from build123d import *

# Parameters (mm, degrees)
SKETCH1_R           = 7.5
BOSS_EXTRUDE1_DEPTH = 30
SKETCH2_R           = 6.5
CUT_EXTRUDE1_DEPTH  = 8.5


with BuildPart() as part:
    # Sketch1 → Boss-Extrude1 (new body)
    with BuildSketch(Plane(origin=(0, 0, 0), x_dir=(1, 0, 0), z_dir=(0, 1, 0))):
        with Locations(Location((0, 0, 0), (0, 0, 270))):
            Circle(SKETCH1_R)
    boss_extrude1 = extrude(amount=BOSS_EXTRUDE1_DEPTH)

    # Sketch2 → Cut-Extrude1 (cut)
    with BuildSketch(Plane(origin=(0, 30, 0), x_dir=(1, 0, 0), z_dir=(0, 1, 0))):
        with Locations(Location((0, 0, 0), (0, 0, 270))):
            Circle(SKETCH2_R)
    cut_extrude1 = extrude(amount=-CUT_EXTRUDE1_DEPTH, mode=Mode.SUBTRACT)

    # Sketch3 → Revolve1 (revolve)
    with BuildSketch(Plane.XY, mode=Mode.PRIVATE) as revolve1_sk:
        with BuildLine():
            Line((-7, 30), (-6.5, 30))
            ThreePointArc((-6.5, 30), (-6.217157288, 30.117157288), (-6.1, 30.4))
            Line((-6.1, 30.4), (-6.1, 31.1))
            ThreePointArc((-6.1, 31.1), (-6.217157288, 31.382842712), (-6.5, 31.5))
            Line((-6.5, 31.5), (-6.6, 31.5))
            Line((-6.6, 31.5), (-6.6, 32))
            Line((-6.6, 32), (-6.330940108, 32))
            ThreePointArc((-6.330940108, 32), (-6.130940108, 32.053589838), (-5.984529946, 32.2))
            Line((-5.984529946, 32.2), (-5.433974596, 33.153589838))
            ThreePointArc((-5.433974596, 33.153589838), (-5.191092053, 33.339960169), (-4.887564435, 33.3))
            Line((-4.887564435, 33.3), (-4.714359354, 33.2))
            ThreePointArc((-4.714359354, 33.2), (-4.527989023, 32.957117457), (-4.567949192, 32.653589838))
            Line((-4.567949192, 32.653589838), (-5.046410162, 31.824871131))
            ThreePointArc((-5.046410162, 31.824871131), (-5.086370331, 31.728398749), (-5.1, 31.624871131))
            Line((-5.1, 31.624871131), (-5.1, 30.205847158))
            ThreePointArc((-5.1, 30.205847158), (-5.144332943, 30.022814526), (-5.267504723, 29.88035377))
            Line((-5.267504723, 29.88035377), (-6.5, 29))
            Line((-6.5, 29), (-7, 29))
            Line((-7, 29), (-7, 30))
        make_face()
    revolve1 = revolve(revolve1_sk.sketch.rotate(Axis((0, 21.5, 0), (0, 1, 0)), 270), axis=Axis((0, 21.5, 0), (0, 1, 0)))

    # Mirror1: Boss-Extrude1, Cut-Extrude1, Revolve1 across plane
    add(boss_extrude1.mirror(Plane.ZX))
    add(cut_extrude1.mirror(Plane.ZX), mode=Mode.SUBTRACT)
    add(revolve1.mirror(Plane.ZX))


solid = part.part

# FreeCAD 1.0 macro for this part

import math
import FreeCAD as App
import Part
import Sketcher
from FreeCAD import Vector
Q = App.Units.Quantity

doc = App.newDocument("Part")
body = doc.addObject("PartDesign::Body", "Body")

sketch1 = body.newObject("Sketcher::SketchObject", "Sketch")
sketch1.AttachmentSupport = (doc.getObject("XZ_Plane"), [""])
sketch1.MapMode = "FlatFace"
sketch1.addGeometry(Part.Circle(Vector(0, 0, 0), Vector(0, 0, 1), 8), False)
sketch1.addConstraint([
    Sketcher.Constraint("Coincident", 0, 3, -1, 1),
    Sketcher.Constraint("Diameter", 0, 15.0),
])
pad1 = body.newObject("PartDesign::Pad", "Pad")
pad1.Profile = sketch1
pad1.Length = 30
pad1.Reversed = True

sketch2 = body.newObject("Sketcher::SketchObject", "Sketch001")
sketch2.AttachmentSupport = (doc.getObject("XZ_Plane"), [""])
sketch2.MapMode = "FlatFace"
sketch2.AttachmentOffset = App.Placement(Vector(0, 0, -30), App.Rotation())
sketch2.addGeometry(Part.Circle(Vector(0, 0, 0), Vector(0, 0, 1), 6), False)
sketch2.addConstraint([
    Sketcher.Constraint("Coincident", 0, 3, -1, 1),
    Sketcher.Constraint("Diameter", 0, 13.0),
])
pocket1 = body.newObject("PartDesign::Pocket", "Pocket")
pocket1.Profile = sketch2
pocket1.Length = 8.5
pocket1.Reversed = True

sketch3 = body.newObject("Sketcher::SketchObject", "Sketch002")
sketch3.AttachmentSupport = (doc.getObject("XY_Plane"), [""])
sketch3.MapMode = "FlatFace"
sketch3.addGeometry([
    Part.LineSegment(Vector(-6.5, 30, 0), Vector(-7, 30, 0)),
    Part.LineSegment(Vector(-7, 30, 0), Vector(-7, 29, 0)),
    Part.LineSegment(Vector(-7, 29, 0), Vector(-6.5, 29, 0)),
    Part.LineSegment(Vector(-6.5, 29, 0), Vector(-5.27, 29.88, 0)),
    Part.ArcOfCircle(Part.Circle(Vector(-5.5, 30.21, 0), Vector(0, 0, 1), 0.4), math.radians(-54), math.radians(0)),
    Part.LineSegment(Vector(-5.1, 30.21, 0), Vector(-5.1, 31.62, 0)),
    Part.ArcOfCircle(Part.Circle(Vector(-4.7, 31.62, 0), Vector(0, 0, 1), 0.4), math.radians(150), math.radians(180)),
    Part.LineSegment(Vector(-5.05, 31.82, 0), Vector(-4.57, 32.65, 0)),
    Part.ArcOfCircle(Part.Circle(Vector(-4.91, 32.85, 0), Vector(0, 0, 1), 0.4), math.radians(-30), math.radians(60)),
    Part.LineSegment(Vector(-4.71, 33.2, 0), Vector(-4.89, 33.3, 0)),
    Part.ArcOfCircle(Part.Circle(Vector(-5.09, 32.95, 0), Vector(0, 0, 1), 0.4), math.radians(60), math.radians(150)),
    Part.LineSegment(Vector(-5.43, 33.15, 0), Vector(-5.98, 32.2, 0)),
    Part.ArcOfCircle(Part.Circle(Vector(-6.33, 32.4, 0), Vector(0, 0, 1), 0.4), math.radians(-90), math.radians(-30)),
    Part.LineSegment(Vector(-6.33, 32, 0), Vector(-6.6, 32, 0)),
    Part.LineSegment(Vector(-6.6, 32, 0), Vector(-6.6, 31.5, 0)),
    Part.LineSegment(Vector(-6.6, 31.5, 0), Vector(-6.5, 31.5, 0)),
    Part.ArcOfCircle(Part.Circle(Vector(-6.5, 31.1, 0), Vector(0, 0, 1), 0.4), math.radians(0), math.radians(90)),
    Part.LineSegment(Vector(-6.1, 31.1, 0), Vector(-6.1, 30.4, 0)),
    Part.ArcOfCircle(Part.Circle(Vector(-6.5, 30.4, 0), Vector(0, 0, 1), 0.4), math.radians(-90), math.radians(0)),
], False)
sketch3.addConstraint([
    Sketcher.Constraint("Coincident", 0, 2, 1, 1),
    Sketcher.Constraint("Coincident", 1, 2, 2, 1),
    Sketcher.Constraint("Coincident", 2, 2, 3, 1),
    Sketcher.Constraint("Tangent", 3, 2, 4, 1),
    Sketcher.Constraint("Tangent", 4, 2, 5, 1),
    Sketcher.Constraint("Tangent", 5, 2, 6, 2),
    Sketcher.Constraint("Tangent", 6, 1, 7, 1),
    Sketcher.Constraint("Tangent", 7, 2, 8, 1),
    Sketcher.Constraint("Tangent", 8, 2, 9, 1),
    Sketcher.Constraint("Tangent", 9, 2, 10, 1),
    Sketcher.Constraint("Tangent", 10, 2, 11, 1),
    Sketcher.Constraint("Tangent", 11, 2, 12, 2),
    Sketcher.Constraint("Tangent", 12, 1, 13, 1),
    Sketcher.Constraint("Coincident", 13, 2, 14, 1),
    Sketcher.Constraint("Coincident", 14, 2, 15, 1),
    Sketcher.Constraint("Tangent", 15, 2, 16, 2),
    Sketcher.Constraint("Tangent", 16, 1, 17, 1),
    Sketcher.Constraint("Tangent", 17, 2, 18, 2),
    Sketcher.Constraint("Tangent", 18, 1, 0, 1),
    Sketcher.Constraint("Horizontal", 0),
    Sketcher.Constraint("Vertical", 1),
    Sketcher.Constraint("Horizontal", 2),
    Sketcher.Constraint("Vertical", 5),
    Sketcher.Constraint("Horizontal", 13),
    Sketcher.Constraint("Vertical", 14),
    Sketcher.Constraint("Horizontal", 15),
    Sketcher.Constraint("Vertical", 17),
    Sketcher.Constraint("Equal", 4, 6),
    Sketcher.Constraint("Equal", 6, 8),
    Sketcher.Constraint("Equal", 8, 10),
    Sketcher.Constraint("Equal", 10, 12),
    Sketcher.Constraint("Equal", 12, 16),
    Sketcher.Constraint("Equal", 16, 18),
    Sketcher.Constraint("Perpendicular", 7, 9),
    Sketcher.Constraint("Perpendicular", 9, 11),
    Sketcher.Constraint("Vertical", 18, 3, 2, 2),
    Sketcher.Constraint("Equal", 2, 14),
    Sketcher.Constraint("Radius", 4, 0.4),
    Sketcher.Constraint("DistanceY", 1, 2, 1, 1, 1.0),
    Sketcher.Constraint("Angle", 7, Q("60 deg")),
    Sketcher.Constraint("DistanceX", 0, 2, 0, 1, 0.5),
    Sketcher.Constraint("DistanceX", 15, 1, 15, 2, 0.1),
    Sketcher.Constraint("DistanceY", 17, 2, 17, 1, 0.7),
    Sketcher.Constraint("DistanceX", 0, 2, -1, 1, 7.0),
    Sketcher.Constraint("DistanceY", -1, 1, 0, 2, 30.0),
    Sketcher.Constraint("DistanceX", 16, 3, 4, 3, 1.0),
    Sketcher.Constraint("Distance", 9, 0.2),
    Sketcher.Constraint("DistanceY", -1, 1, 8, 2, 33.2),
    Sketcher.Constraint("DistanceX", 13, 2, 13, 1, 0.26906),
    Sketcher.Constraint("DistanceY", 5, 1, 5, 2, 1.419024),
])
revolution = body.newObject("PartDesign::Revolution", "Revolution")
revolution.Profile = sketch3
revolution.ReferenceAxis = (sketch3, ["V_Axis"])
revolution.Angle = 360
doc.recompute()

mirrored = body.newObject("PartDesign::Mirrored", "Mirrored")
mirrored.Originals = [pad1, pocket1, revolution]
mirrored.MirrorPlane = (doc.getObject("XZ_Plane"), [""])
body.Tip = mirrored

doc.recompute()
